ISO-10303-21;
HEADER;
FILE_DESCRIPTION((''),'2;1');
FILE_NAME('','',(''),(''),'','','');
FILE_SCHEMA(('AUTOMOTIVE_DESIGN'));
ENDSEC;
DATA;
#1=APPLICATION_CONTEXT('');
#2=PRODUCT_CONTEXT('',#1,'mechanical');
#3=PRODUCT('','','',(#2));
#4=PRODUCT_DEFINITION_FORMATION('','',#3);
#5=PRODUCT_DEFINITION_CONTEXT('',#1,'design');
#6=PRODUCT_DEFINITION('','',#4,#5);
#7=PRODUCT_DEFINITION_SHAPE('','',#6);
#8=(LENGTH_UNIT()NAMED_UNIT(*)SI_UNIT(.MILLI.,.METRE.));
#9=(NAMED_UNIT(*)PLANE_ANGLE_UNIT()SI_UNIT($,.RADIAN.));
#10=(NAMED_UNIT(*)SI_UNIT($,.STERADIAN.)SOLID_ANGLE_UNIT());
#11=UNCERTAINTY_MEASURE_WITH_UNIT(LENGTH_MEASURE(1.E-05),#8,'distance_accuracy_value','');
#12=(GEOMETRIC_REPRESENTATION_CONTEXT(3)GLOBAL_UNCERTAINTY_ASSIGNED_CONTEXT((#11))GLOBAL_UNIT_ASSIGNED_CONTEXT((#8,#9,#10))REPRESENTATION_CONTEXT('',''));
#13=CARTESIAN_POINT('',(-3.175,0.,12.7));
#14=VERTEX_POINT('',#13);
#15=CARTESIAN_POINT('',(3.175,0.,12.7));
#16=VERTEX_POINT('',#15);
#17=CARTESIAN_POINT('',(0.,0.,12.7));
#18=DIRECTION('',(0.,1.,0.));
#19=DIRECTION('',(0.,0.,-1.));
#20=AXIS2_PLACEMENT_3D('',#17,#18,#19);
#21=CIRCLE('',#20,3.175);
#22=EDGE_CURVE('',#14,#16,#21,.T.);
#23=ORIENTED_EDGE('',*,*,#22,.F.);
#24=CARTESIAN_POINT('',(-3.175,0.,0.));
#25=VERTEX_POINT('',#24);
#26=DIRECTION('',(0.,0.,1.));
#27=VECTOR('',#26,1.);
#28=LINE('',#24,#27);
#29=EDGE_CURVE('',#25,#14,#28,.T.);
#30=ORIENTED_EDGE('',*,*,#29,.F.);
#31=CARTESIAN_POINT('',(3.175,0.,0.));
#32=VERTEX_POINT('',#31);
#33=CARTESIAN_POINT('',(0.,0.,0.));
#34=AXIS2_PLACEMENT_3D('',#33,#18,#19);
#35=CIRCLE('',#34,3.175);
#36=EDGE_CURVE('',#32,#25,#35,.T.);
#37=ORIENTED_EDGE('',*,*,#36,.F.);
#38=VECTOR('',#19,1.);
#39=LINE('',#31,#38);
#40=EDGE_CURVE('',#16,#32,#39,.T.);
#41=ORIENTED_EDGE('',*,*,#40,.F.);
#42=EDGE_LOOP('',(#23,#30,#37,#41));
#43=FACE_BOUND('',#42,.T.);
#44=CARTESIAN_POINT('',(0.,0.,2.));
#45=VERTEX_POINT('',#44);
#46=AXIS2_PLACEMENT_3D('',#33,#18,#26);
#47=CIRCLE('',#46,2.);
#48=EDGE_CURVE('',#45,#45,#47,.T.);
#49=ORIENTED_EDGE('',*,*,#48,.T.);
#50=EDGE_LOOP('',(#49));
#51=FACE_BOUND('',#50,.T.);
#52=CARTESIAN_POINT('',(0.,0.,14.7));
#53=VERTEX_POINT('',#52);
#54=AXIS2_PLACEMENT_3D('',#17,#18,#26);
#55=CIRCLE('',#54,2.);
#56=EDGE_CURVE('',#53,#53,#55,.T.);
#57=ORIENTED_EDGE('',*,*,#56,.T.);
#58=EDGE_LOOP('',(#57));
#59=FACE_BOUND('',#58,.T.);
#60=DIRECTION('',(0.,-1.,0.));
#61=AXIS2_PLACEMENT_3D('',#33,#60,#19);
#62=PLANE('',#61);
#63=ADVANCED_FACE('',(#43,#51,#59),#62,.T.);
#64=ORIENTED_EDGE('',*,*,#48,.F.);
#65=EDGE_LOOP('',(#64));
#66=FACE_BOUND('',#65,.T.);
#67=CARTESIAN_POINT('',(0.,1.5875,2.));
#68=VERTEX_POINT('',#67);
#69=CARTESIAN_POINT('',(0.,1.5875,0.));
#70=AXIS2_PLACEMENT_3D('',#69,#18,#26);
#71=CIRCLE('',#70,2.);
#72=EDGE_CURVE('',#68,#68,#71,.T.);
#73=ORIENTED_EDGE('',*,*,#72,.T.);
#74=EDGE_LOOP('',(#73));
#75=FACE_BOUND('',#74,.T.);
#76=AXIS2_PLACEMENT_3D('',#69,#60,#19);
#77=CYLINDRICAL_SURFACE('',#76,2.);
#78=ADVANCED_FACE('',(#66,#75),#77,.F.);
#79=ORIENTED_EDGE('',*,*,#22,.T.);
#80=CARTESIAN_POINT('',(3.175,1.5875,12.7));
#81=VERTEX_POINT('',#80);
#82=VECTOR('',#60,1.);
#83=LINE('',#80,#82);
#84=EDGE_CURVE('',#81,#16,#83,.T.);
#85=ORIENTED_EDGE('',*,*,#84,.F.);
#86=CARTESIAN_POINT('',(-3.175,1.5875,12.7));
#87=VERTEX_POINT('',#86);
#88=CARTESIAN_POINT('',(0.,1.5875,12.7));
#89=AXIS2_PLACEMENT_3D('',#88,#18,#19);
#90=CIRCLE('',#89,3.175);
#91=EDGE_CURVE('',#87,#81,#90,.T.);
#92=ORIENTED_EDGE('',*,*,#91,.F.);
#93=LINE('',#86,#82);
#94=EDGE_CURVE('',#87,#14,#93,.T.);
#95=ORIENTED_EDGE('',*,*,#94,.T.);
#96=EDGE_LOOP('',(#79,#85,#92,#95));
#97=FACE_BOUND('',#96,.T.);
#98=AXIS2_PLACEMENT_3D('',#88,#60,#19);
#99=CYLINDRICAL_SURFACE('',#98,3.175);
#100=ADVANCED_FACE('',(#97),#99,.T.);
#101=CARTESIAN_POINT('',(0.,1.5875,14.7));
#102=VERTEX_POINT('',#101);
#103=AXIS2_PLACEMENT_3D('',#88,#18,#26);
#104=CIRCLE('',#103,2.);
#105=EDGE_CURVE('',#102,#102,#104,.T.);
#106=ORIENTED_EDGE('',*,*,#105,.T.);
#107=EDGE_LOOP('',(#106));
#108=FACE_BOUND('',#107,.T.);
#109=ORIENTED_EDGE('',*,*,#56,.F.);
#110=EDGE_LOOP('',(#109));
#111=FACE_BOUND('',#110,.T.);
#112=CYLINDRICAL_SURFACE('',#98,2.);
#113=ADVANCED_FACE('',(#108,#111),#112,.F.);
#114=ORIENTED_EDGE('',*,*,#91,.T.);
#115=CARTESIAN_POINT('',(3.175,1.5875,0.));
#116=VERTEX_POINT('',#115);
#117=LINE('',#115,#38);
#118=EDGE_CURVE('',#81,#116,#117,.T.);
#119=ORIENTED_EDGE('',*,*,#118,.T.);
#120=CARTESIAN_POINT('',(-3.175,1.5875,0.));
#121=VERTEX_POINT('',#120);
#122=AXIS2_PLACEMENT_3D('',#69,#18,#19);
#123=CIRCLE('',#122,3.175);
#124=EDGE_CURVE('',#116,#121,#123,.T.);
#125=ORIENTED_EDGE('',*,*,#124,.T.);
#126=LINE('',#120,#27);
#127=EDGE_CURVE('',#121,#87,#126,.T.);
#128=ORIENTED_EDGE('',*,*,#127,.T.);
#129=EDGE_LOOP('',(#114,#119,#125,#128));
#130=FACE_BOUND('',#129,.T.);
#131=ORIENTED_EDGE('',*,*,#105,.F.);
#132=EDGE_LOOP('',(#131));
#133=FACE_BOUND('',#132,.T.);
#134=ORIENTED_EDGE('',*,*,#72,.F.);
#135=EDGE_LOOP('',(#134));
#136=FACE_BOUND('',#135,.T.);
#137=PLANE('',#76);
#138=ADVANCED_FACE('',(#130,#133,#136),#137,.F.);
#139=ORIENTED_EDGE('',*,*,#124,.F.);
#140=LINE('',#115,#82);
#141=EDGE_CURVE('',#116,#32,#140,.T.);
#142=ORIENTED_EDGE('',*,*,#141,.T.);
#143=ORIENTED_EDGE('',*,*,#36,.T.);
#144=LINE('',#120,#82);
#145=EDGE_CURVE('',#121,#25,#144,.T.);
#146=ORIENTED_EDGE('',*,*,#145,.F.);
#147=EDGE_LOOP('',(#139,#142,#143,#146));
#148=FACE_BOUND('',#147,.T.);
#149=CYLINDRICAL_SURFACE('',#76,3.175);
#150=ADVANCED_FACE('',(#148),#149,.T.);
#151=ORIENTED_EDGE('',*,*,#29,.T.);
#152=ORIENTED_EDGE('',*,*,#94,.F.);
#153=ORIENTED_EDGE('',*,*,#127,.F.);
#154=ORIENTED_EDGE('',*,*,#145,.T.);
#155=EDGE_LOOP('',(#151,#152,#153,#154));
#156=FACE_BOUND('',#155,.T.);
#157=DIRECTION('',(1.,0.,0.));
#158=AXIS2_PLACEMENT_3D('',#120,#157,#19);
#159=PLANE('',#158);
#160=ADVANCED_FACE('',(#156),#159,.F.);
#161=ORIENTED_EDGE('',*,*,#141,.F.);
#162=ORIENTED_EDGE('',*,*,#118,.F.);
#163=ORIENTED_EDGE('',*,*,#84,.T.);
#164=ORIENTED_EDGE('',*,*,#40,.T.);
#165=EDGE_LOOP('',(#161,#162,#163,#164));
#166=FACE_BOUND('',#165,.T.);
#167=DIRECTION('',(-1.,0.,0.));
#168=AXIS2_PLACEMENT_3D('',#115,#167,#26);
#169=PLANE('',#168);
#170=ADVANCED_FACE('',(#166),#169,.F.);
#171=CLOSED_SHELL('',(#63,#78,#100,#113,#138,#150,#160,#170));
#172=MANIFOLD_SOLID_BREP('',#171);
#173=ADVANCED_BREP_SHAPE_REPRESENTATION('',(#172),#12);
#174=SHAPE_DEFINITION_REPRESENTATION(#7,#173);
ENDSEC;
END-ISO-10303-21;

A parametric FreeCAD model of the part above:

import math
import FreeCAD as App
import Part
import Sketcher
from FreeCAD import Vector
Q = App.Units.Quantity

doc = App.newDocument("Part")
body = doc.addObject("PartDesign::Body", "Body")

sketch1 = body.newObject("Sketcher::SketchObject", "Sketch")
sketch1.AttachmentSupport = (doc.getObject("XZ_Plane"), [""])
sketch1.MapMode = "FlatFace"
sketch1.addGeometry([
    Part.LineSegment(Vector(3.2, 12.7, 0), Vector(3.2, 0, 0)),
    Part.ArcOfCircle(Part.Circle(Vector(0, 0, 0), Vector(0, 0, 1), 3.2), math.radians(180), math.radians(360)),
    Part.LineSegment(Vector(-3.2, 0, 0), Vector(-3.2, 12.7, 0)),
    Part.ArcOfCircle(Part.Circle(Vector(0, 12.7, 0), Vector(0, 0, 1), 3.2), math.radians(0), math.radians(180)),
    Part.Circle(Vector(0, 12.7, 0), Vector(0, 0, 1), 2),
    Part.Circle(Vector(0, 0, 0), Vector(0, 0, 1), 2),
], False)
sketch1.addConstraint([
    Sketcher.Constraint("Tangent", 0, 2, 1, 2),
    Sketcher.Constraint("Tangent", 1, 1, 2, 1),
    Sketcher.Constraint("Tangent", 2, 2, 3, 2),
    Sketcher.Constraint("Tangent", 3, 1, 0, 1),
    Sketcher.Constraint("Vertical", 0),
    Sketcher.Constraint("Vertical", 2),
    Sketcher.Constraint("Coincident", 1, 3, -1, 1),
    Sketcher.Constraint("Coincident", 5, 3, -1, 1),
    Sketcher.Constraint("Coincident", 4, 3, 3, 3),
    Sketcher.Constraint("Equal", 4, 5),
    Sketcher.Constraint("DistanceY", 0, 2, 0, 1, Q("0.5 in")),
    Sketcher.Constraint("Radius", 1, Q("0.125 in")),
    Sketcher.Constraint("Diameter", 4, Q("4 mm")),
])
pad1 = body.newObject("PartDesign::Pad", "Pad")
pad1.Profile = sketch1
pad1.Length = Q("0.0625 in")
pad1.Reversed = True

doc.recompute()
